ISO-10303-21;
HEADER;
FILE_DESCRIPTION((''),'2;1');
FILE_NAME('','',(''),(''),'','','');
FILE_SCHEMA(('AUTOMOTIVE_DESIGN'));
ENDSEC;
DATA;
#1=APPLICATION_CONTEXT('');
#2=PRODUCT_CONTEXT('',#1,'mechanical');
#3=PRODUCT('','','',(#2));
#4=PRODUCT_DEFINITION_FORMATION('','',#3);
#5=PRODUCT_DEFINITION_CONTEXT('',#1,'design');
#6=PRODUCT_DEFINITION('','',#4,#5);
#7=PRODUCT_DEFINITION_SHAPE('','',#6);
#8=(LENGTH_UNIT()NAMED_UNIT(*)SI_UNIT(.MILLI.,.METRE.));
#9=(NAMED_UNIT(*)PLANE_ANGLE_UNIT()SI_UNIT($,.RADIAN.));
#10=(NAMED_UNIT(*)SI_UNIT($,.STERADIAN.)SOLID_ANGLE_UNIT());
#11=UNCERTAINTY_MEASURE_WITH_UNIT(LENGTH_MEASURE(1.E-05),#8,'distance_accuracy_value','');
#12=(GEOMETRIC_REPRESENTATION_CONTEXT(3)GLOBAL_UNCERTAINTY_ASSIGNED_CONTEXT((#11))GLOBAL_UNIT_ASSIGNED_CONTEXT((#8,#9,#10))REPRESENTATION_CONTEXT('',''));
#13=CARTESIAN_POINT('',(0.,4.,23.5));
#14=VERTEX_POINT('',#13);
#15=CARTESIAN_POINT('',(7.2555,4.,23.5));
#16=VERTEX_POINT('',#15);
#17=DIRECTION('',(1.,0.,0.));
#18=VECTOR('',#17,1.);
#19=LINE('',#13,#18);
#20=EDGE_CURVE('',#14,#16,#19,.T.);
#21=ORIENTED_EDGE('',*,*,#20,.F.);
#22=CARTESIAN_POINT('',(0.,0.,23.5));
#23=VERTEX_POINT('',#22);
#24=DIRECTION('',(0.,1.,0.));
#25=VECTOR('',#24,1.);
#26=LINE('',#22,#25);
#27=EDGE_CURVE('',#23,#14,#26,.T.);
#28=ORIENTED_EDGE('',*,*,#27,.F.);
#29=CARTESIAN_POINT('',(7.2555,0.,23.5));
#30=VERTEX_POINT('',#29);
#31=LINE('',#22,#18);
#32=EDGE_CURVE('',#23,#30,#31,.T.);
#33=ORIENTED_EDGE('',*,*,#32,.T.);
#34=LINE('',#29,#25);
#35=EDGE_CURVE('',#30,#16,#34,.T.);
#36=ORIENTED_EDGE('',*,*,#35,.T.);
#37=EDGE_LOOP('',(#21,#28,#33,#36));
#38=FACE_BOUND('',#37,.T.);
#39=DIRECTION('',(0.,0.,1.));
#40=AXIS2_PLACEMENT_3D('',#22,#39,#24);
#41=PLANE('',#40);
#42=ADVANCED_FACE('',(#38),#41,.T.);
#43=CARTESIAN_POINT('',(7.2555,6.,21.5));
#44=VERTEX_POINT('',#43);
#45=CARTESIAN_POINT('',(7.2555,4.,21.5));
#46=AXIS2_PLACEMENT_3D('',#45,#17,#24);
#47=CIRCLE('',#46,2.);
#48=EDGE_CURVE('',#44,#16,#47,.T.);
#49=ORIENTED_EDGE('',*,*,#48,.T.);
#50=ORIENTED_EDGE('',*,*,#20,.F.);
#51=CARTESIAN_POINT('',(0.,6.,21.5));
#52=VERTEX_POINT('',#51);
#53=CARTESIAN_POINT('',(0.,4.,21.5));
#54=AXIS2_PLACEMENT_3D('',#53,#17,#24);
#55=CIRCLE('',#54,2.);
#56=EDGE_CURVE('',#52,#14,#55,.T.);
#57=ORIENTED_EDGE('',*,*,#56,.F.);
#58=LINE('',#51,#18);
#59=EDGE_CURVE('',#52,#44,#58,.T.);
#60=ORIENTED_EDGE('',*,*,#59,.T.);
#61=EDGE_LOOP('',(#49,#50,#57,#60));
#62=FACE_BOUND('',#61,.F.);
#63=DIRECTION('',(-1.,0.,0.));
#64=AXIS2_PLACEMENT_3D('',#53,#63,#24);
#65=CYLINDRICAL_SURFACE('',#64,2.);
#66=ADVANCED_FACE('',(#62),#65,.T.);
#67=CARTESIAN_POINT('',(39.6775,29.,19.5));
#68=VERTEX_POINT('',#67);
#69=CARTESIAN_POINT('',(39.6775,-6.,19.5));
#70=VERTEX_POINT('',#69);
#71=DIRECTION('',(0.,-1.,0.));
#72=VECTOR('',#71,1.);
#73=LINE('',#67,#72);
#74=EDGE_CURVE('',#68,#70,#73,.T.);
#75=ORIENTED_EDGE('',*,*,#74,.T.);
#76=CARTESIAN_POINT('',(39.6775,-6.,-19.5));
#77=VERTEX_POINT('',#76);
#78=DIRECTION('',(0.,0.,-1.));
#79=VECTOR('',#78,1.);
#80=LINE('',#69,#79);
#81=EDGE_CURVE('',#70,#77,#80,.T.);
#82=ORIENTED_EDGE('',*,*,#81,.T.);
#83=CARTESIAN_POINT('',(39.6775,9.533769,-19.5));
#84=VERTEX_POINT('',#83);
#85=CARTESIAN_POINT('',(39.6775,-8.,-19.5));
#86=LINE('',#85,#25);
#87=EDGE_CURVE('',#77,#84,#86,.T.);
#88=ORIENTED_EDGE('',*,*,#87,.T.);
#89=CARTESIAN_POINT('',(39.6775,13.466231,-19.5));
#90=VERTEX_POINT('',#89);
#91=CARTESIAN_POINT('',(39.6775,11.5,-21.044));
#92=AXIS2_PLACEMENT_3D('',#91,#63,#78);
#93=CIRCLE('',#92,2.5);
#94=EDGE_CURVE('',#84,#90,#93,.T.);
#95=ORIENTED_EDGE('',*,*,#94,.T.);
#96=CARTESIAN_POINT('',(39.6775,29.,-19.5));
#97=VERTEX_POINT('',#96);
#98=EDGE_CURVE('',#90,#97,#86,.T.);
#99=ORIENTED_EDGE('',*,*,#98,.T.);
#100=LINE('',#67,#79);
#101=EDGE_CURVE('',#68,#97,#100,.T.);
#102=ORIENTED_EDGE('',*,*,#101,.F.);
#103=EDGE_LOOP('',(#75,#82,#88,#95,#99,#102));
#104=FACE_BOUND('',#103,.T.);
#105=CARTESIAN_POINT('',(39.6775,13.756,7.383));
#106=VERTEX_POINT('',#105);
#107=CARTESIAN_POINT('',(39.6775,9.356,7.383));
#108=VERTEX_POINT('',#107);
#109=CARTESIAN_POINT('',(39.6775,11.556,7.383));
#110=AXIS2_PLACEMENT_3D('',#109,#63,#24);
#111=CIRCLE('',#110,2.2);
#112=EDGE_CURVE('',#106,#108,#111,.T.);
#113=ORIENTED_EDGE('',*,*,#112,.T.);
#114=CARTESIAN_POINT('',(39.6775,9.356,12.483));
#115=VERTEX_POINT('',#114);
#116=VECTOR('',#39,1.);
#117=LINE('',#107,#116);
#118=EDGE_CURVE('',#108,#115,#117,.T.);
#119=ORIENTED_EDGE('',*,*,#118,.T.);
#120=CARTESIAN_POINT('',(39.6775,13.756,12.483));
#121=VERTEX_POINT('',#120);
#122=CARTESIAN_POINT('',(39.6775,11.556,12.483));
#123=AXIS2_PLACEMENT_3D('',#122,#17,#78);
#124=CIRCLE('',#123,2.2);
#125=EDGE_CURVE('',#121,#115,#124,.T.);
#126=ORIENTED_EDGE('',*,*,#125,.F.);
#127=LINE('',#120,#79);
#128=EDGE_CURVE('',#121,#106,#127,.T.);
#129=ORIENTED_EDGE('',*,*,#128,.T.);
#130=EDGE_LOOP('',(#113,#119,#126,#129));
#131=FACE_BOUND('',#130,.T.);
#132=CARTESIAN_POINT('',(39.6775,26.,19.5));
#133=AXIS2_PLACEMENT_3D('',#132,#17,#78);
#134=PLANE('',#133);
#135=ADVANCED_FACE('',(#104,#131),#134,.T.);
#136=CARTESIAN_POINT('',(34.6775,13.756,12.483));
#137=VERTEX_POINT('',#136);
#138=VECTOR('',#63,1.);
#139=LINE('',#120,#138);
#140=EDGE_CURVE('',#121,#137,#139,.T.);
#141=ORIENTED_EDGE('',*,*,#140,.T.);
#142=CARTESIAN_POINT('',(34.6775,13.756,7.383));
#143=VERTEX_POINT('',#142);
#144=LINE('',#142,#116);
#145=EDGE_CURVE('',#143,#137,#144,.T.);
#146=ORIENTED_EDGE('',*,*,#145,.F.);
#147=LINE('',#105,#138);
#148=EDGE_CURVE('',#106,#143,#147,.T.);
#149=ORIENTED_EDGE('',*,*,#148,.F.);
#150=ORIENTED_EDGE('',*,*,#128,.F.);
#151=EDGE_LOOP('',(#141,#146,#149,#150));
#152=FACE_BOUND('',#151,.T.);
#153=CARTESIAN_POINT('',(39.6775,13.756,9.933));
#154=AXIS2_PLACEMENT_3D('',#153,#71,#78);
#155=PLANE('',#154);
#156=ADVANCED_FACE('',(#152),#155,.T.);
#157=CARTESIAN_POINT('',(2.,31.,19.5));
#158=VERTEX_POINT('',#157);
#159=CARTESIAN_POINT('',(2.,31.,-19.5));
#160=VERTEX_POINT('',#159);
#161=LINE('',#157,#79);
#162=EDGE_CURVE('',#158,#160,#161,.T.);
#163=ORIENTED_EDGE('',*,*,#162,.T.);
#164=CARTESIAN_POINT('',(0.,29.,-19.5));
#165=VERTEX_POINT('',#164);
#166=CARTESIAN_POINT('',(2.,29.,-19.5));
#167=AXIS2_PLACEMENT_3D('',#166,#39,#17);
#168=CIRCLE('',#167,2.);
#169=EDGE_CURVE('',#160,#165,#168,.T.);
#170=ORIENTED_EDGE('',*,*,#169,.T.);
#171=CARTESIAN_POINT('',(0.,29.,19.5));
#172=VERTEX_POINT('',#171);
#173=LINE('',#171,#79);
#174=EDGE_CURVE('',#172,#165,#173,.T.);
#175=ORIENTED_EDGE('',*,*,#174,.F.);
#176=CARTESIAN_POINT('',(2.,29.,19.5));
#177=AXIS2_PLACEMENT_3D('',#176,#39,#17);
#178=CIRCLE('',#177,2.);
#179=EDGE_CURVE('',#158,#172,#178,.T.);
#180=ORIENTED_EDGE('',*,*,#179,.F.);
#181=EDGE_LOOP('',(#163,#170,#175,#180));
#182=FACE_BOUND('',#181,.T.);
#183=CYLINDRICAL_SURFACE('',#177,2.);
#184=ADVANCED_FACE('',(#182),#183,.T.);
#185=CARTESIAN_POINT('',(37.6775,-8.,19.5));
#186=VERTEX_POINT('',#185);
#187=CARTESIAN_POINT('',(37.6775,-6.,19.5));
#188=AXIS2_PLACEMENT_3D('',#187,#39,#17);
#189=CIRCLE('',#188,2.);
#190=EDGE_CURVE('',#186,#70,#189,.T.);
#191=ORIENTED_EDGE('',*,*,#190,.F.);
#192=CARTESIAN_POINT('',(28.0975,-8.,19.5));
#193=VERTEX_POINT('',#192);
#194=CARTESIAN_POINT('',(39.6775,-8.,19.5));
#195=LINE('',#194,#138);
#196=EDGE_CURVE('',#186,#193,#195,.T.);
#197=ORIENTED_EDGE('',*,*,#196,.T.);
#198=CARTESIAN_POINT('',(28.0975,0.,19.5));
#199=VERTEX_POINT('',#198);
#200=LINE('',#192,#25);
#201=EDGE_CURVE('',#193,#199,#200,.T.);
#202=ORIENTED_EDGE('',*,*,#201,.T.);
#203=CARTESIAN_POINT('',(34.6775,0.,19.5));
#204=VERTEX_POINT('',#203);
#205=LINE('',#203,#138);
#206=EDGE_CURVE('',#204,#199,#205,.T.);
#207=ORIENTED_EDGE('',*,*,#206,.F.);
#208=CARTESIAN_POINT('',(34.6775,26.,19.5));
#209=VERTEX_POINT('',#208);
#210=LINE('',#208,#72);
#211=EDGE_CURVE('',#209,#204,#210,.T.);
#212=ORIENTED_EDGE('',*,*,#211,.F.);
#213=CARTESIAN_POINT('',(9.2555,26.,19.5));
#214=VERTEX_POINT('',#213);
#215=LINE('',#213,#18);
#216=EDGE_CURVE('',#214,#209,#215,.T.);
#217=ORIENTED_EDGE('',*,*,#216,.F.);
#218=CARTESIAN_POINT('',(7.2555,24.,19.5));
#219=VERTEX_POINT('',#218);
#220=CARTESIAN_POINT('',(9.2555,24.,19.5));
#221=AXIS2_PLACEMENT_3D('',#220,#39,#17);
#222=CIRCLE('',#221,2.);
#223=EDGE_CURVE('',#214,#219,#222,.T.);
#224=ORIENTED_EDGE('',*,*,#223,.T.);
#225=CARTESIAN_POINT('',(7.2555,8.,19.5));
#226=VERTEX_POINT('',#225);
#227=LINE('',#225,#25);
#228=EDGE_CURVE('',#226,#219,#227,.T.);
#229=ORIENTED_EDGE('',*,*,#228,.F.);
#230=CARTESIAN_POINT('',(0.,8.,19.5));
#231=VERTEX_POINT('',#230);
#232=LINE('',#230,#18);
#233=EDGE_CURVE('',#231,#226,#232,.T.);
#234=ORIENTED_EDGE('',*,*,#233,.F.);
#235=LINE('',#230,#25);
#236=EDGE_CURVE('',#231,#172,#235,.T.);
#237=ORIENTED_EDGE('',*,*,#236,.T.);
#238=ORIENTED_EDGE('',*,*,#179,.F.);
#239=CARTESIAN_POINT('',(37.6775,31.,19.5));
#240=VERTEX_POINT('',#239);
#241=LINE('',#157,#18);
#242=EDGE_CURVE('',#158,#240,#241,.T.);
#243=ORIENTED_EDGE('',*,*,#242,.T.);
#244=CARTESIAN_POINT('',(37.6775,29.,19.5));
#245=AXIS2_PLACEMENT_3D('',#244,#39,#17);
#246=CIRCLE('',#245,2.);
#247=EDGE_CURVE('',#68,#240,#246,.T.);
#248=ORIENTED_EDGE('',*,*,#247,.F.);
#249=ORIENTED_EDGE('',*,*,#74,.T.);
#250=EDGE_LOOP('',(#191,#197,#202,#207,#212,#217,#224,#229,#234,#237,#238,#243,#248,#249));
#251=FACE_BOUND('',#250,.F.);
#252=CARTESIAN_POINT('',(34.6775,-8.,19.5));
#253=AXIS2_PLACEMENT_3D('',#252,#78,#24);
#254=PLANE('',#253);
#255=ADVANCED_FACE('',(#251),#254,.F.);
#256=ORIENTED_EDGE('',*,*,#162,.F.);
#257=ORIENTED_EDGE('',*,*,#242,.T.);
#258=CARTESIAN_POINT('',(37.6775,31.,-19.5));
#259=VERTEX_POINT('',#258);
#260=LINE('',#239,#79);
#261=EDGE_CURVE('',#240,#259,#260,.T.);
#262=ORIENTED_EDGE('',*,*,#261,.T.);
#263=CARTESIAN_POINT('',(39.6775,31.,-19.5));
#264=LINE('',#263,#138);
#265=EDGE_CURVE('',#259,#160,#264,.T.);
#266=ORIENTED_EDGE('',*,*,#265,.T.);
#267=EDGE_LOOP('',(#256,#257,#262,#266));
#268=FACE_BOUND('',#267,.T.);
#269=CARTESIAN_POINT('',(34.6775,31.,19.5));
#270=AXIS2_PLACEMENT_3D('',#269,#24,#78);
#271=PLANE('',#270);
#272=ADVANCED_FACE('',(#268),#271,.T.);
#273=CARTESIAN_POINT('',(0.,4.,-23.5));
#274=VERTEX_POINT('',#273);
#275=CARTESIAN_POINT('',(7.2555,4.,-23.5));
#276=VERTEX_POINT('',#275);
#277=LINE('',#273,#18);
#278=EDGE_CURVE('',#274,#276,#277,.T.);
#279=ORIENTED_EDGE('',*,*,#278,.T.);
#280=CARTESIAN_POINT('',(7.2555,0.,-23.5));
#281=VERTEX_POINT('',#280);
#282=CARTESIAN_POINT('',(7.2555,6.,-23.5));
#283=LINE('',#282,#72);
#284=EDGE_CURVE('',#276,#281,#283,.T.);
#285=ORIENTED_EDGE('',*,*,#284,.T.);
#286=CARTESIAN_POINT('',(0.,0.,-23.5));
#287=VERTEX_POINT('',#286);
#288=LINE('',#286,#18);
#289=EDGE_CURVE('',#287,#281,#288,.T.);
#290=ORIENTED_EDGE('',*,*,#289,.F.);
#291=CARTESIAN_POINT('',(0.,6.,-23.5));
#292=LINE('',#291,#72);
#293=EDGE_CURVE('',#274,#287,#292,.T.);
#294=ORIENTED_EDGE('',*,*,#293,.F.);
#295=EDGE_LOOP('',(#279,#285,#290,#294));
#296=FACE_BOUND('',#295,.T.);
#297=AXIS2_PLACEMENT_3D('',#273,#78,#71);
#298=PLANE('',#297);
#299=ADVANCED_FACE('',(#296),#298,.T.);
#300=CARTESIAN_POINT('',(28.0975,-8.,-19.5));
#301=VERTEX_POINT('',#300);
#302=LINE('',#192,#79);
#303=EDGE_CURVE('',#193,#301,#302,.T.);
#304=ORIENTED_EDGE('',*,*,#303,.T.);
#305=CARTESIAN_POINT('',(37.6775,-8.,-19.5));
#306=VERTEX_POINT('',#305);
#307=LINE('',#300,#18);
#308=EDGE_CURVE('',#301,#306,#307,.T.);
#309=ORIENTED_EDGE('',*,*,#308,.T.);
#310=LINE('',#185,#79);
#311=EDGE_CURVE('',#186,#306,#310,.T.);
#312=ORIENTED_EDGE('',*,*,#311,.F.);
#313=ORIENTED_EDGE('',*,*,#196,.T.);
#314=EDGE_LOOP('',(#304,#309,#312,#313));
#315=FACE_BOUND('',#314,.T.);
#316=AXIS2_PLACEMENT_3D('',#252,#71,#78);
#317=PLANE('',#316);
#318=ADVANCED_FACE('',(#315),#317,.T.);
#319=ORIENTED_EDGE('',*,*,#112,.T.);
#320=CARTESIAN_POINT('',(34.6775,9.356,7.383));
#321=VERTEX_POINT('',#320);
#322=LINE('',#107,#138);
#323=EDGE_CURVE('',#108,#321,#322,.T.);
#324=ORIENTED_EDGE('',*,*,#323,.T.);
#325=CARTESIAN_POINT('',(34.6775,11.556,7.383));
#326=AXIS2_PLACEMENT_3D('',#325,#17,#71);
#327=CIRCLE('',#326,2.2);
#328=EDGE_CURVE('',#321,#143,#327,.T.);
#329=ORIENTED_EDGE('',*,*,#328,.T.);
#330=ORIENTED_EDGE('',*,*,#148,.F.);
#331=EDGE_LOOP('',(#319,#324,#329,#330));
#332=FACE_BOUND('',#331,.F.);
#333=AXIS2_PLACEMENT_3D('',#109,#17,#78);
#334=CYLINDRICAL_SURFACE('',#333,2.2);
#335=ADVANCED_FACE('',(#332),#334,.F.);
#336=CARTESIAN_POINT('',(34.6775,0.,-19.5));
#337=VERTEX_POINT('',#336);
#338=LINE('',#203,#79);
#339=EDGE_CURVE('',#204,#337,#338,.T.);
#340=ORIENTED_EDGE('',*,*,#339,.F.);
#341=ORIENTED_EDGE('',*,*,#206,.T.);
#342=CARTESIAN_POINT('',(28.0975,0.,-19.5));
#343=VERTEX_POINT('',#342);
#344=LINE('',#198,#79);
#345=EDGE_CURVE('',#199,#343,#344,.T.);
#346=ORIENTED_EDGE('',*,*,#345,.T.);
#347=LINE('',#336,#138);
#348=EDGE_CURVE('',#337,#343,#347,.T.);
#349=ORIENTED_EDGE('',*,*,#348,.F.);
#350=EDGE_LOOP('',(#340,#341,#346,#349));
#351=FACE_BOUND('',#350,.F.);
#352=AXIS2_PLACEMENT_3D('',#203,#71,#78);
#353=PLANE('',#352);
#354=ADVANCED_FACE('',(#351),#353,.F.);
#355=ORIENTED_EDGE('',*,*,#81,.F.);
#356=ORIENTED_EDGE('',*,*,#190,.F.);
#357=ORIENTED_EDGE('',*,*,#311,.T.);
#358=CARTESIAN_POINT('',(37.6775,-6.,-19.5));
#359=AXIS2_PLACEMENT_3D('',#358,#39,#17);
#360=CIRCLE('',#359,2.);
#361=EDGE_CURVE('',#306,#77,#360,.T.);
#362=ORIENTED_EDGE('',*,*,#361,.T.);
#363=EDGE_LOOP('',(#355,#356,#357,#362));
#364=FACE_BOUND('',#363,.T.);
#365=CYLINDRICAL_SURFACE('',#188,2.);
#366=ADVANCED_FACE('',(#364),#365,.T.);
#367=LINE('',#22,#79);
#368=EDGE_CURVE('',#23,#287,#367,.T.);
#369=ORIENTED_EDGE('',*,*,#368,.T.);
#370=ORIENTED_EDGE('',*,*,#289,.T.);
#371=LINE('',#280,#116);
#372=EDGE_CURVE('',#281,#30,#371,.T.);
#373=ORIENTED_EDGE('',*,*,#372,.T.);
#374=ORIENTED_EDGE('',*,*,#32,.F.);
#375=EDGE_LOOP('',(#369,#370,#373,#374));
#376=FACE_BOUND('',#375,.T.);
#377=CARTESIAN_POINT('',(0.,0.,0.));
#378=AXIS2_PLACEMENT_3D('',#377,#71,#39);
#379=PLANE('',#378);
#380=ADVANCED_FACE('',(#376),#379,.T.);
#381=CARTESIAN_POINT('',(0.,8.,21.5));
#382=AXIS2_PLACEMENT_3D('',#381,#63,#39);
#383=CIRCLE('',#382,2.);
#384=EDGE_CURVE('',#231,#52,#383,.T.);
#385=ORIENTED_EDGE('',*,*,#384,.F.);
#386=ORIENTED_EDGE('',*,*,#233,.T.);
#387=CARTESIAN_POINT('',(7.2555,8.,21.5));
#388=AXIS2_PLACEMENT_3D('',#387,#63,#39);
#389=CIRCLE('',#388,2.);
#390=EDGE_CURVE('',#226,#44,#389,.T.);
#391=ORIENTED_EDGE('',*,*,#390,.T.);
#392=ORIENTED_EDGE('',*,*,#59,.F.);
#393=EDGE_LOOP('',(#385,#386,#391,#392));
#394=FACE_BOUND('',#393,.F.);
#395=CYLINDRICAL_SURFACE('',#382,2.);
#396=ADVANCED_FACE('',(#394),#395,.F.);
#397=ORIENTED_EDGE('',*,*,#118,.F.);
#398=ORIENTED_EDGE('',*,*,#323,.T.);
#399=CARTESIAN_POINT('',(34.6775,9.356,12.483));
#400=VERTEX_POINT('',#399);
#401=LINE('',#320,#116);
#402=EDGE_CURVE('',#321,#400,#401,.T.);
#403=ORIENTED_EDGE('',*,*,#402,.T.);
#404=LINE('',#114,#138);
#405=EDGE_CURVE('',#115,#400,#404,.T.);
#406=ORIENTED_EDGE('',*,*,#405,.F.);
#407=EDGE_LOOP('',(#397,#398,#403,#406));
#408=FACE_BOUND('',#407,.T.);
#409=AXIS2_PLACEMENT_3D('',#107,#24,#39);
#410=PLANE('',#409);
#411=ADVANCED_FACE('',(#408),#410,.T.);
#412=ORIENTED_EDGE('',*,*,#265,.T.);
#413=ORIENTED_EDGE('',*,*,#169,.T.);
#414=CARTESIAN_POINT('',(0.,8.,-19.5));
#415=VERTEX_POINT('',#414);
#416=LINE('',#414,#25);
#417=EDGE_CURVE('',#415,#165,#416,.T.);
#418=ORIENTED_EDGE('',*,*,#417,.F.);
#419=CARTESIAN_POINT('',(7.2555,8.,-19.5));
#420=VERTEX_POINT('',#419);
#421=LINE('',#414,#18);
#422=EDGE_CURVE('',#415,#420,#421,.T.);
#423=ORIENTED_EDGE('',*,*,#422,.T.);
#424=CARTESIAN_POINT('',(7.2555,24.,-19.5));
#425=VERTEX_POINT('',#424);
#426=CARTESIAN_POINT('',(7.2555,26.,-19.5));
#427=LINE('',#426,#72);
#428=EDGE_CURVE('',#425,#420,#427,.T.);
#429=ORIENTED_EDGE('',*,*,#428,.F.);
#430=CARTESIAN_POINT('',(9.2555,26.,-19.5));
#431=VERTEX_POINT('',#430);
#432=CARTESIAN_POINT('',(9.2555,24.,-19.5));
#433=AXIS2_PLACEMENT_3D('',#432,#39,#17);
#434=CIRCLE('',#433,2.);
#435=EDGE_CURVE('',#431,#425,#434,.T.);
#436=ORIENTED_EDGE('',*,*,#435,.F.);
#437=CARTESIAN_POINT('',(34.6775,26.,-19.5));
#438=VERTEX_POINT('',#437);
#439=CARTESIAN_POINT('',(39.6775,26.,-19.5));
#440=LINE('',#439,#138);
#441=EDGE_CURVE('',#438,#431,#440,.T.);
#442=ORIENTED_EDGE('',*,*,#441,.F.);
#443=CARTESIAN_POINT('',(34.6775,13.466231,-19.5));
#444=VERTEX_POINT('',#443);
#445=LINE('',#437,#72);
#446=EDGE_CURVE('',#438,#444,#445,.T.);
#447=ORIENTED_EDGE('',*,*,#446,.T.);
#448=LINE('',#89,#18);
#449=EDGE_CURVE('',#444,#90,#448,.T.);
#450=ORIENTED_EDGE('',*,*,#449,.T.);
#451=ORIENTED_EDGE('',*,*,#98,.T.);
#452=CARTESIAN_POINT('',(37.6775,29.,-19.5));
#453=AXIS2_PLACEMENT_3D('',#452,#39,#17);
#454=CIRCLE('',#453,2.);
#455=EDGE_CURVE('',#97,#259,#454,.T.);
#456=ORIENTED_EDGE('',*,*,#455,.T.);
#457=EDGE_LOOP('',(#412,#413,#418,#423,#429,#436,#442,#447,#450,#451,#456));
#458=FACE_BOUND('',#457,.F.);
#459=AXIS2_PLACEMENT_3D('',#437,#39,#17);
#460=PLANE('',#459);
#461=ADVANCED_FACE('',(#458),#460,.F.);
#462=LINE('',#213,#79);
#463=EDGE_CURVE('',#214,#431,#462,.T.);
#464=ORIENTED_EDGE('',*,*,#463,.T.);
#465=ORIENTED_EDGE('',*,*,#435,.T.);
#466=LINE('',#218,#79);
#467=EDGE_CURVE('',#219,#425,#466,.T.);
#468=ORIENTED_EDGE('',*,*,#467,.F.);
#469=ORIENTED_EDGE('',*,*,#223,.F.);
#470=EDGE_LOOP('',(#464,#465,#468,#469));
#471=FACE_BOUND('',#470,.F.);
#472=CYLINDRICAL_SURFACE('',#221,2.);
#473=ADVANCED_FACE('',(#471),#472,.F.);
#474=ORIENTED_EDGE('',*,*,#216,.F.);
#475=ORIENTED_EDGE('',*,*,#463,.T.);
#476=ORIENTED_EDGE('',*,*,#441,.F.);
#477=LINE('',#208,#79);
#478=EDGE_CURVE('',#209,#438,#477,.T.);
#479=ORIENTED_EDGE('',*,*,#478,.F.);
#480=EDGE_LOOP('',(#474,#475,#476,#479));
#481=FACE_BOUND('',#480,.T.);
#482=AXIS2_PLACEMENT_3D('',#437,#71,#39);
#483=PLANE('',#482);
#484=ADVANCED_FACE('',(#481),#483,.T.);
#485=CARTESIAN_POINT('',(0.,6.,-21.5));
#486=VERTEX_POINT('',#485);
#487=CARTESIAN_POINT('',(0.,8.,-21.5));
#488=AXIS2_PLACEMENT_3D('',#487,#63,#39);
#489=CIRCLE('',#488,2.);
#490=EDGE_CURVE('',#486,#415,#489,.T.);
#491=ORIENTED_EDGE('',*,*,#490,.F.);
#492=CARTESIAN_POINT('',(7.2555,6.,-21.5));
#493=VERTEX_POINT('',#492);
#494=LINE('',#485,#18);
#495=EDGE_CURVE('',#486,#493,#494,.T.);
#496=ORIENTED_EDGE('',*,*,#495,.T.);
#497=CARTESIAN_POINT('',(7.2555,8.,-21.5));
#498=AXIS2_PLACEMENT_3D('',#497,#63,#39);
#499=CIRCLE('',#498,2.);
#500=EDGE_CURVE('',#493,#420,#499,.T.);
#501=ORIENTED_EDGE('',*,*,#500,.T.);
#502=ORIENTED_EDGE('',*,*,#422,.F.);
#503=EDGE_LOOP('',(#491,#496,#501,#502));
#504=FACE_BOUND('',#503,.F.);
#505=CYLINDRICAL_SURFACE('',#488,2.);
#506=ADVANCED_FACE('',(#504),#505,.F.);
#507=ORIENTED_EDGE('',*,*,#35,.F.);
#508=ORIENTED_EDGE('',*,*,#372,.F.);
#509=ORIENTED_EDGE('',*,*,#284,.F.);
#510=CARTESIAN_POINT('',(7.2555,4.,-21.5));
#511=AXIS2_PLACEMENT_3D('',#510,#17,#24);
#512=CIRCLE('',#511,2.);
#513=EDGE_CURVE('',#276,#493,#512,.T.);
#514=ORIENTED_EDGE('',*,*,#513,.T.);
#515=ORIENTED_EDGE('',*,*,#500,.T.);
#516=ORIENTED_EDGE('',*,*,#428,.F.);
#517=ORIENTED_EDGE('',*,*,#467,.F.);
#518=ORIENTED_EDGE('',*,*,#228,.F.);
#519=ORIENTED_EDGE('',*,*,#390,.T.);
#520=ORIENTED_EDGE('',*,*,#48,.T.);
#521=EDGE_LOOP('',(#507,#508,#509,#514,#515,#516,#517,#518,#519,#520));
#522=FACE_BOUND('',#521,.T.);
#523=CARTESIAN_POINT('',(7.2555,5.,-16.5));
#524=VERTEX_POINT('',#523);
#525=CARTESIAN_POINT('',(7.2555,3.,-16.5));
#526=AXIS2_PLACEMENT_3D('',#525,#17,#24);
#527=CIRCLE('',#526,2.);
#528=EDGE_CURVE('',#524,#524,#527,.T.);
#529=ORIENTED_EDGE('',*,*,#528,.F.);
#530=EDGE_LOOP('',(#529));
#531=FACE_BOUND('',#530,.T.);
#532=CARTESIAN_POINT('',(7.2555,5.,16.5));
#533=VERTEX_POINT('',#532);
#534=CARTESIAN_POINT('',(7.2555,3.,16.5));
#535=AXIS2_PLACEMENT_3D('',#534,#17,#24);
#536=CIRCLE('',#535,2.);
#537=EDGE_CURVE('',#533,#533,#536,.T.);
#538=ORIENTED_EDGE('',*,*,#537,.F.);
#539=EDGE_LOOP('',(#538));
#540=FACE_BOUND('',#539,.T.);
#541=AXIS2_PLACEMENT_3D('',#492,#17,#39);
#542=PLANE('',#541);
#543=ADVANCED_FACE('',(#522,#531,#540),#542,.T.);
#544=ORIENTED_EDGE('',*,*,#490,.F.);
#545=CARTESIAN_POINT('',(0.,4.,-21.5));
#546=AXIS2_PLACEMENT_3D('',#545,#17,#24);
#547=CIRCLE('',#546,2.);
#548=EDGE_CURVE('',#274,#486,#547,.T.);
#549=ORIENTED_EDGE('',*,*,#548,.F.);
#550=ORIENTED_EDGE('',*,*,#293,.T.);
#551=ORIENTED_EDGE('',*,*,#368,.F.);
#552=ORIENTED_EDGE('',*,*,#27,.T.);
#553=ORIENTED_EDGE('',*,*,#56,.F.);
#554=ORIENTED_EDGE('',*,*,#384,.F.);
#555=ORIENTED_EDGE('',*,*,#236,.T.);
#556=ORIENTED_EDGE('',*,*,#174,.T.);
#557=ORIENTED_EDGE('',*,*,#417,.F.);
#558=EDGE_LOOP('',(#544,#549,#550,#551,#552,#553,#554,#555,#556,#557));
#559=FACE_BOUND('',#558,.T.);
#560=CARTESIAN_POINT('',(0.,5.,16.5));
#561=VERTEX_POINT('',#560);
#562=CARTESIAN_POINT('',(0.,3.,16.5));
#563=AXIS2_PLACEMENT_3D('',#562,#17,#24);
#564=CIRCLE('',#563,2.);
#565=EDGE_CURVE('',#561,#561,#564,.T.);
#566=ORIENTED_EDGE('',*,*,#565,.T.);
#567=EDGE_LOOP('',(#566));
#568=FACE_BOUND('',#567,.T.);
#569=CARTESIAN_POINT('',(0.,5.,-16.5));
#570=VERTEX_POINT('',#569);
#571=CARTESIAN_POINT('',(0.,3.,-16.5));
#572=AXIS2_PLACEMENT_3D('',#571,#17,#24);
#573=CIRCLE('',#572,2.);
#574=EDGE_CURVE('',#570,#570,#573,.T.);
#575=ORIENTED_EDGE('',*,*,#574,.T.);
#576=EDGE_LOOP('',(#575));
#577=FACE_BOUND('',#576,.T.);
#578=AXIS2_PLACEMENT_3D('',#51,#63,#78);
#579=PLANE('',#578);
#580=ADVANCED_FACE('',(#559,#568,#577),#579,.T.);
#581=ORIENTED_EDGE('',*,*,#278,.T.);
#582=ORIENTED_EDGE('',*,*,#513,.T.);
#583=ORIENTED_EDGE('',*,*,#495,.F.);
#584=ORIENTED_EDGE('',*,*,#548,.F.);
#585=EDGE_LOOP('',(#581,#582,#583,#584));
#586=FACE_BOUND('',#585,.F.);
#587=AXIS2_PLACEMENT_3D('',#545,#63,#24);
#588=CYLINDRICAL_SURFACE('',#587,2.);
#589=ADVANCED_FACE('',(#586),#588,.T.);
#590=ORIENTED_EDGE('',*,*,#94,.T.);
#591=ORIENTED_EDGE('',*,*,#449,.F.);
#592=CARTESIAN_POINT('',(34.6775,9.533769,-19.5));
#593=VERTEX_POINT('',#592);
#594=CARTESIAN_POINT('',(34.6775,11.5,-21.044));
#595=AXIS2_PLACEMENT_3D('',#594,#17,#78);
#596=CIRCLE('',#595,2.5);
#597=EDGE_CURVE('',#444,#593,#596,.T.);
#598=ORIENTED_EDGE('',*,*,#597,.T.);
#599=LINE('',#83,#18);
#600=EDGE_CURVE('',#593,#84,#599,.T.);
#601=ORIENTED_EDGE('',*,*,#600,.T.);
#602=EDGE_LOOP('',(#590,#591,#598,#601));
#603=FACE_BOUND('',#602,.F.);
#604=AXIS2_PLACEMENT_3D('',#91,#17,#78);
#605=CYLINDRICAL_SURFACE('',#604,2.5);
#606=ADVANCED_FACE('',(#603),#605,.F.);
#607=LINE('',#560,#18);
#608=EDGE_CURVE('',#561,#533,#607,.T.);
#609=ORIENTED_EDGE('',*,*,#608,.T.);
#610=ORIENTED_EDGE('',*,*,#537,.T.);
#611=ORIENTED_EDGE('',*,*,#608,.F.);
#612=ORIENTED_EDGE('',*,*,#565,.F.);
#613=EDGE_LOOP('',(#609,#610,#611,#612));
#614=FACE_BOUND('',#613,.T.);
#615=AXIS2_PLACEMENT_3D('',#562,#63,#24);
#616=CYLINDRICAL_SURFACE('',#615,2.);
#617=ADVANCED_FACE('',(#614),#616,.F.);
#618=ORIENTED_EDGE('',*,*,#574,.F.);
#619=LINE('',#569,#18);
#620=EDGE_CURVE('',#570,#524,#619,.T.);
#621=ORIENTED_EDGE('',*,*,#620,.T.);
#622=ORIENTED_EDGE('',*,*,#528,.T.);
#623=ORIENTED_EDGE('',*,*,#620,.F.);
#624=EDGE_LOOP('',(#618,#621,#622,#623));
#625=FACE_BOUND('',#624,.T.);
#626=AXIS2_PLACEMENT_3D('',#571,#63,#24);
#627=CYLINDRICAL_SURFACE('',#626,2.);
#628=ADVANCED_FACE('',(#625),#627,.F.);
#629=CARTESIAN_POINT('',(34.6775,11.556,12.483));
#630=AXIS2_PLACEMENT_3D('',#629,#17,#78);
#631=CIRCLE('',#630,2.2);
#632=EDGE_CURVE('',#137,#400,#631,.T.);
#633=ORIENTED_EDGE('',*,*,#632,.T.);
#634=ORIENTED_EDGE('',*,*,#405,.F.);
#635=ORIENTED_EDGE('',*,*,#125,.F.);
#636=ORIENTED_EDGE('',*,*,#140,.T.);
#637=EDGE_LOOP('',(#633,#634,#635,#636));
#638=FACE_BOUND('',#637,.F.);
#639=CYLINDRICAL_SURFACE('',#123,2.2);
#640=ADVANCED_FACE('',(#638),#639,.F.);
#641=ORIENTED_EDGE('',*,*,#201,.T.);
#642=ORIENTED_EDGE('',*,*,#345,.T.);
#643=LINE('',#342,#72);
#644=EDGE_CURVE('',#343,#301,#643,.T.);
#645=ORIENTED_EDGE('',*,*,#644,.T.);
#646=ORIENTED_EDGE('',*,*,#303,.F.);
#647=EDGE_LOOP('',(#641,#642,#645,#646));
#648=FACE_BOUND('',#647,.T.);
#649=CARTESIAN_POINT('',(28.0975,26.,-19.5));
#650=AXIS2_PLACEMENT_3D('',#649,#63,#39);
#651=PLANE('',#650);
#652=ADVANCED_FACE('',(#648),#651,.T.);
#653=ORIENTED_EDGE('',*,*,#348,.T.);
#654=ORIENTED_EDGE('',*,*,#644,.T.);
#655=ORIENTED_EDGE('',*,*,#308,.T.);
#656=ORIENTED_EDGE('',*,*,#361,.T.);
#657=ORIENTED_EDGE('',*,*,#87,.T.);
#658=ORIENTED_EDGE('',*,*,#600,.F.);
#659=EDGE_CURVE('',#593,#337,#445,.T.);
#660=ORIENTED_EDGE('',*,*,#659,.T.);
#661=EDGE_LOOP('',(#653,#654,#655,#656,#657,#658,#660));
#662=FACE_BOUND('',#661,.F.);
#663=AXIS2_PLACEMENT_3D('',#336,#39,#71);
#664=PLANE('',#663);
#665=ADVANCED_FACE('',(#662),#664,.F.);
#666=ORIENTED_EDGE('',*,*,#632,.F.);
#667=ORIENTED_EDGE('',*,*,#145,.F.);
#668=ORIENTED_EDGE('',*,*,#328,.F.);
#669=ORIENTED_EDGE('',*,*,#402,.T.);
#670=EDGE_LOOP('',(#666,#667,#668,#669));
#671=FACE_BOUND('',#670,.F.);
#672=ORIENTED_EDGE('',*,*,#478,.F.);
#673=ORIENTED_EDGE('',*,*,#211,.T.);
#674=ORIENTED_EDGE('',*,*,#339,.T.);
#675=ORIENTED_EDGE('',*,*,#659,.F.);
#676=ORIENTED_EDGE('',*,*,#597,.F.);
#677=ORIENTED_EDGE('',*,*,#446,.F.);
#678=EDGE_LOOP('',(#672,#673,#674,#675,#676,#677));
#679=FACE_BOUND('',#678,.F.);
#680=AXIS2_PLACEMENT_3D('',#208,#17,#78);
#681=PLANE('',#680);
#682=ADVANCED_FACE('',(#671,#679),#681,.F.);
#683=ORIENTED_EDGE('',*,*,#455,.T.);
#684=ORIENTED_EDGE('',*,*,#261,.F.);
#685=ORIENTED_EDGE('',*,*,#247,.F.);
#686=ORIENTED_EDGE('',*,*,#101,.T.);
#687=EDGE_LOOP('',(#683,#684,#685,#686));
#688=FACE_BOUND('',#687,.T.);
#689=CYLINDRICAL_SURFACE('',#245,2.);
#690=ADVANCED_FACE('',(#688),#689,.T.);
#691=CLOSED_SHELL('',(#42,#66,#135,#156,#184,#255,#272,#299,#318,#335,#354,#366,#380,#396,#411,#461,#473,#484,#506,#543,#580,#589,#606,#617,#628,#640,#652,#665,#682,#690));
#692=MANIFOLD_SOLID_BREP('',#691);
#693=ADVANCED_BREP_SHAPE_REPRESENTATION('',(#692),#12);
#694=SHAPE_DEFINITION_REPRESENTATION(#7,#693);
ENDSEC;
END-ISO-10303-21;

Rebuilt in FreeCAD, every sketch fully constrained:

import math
import FreeCAD as App
import Part
import Sketcher

doc = App.newDocument("Part")
body = doc.addObject("PartDesign::Body", "Body")

# Sketch on YZ plane
sketch1 = body.newObject("Sketcher::SketchObject", "Sketch")
sketch1.AttachmentSupport = (doc.getObject("YZ_Plane"), [""])
sketch1.MapMode = "FlatFace"
sketch1.addGeometry([
    Part.LineSegment(App.Vector(0, 23.5, 0), App.Vector(0, -23.5, 0)),  # 0
    Part.LineSegment(App.Vector(0, -23.5, 0), App.Vector(4, -23.5, 0)),  # 1
    Part.ArcOfCircle(Part.Circle(App.Vector(4, -21.5, 0), App.Vector(0, 0, 1), 2), math.radians(-90), math.radians(0)),  # 2
    Part.LineSegment(App.Vector(6, -21.5, 0), App.Vector(6, -16.5, 0)),  # 3
    Part.LineSegment(App.Vector(6, -16.5, 0), App.Vector(6, 16.5, 0)),  # 4
    Part.LineSegment(App.Vector(6, 16.5, 0), App.Vector(6, 21.5, 0)),  # 5
    Part.ArcOfCircle(Part.Circle(App.Vector(4, 21.5, 0), App.Vector(0, 0, 1), 2), math.radians(0), math.radians(90)),  # 6
    Part.LineSegment(App.Vector(4, 23.5, 0), App.Vector(0, 23.5, 0)),  # 7
    Part.Circle(App.Vector(3, -16.5, 0), App.Vector(0, 0, 1), 2),  # 8
    Part.Circle(App.Vector(3, 16.5, 0), App.Vector(0, 0, 1), 2),  # 9
], False)
sketch1.addConstraint([
    Sketcher.Constraint("Coincident", 0, 2, 1, 1),
    Sketcher.Constraint("Tangent", 1, 2, 2, 1),
    Sketcher.Constraint("Tangent", 2, 2, 3, 1),
    Sketcher.Constraint("Coincident", 3, 2, 4, 1),
    Sketcher.Constraint("Coincident", 4, 2, 5, 1),
    Sketcher.Constraint("Tangent", 5, 2, 6, 1),
    Sketcher.Constraint("Tangent", 6, 2, 7, 1),
    Sketcher.Constraint("Coincident", 7, 2, 0, 1),
    Sketcher.Constraint("Vertical", 0),
    Sketcher.Constraint("Horizontal", 1),
    Sketcher.Constraint("Vertical", 3),
    Sketcher.Constraint("Vertical", 4),
    Sketcher.Constraint("Vertical", 5),
    Sketcher.Constraint("Horizontal", 7),
    Sketcher.Constraint("Equal", 2, 6),
    Sketcher.Constraint("Equal", 6, 8),
    Sketcher.Constraint("Equal", 8, 9),
    Sketcher.Constraint("Symmetric", 0, 2, 7, 2, -1, 1),
    Sketcher.Constraint("Symmetric", 8, 3, 9, 3, -1),
    Sketcher.Constraint("Horizontal", 8, 3, 3, 2),
    Sketcher.Constraint("Horizontal", 9, 3, 4, 2),
    Sketcher.Constraint("Diameter", 8, 4.0),
    Sketcher.Constraint("DistanceX", 1, 1, 1, 2, 4.0),
    Sketcher.Constraint("DistanceY", 0, 2, 0, 1, 47.0),
    Sketcher.Constraint("DistanceX", -1, 1, 8, 3, 3.0),
    Sketcher.Constraint("DistanceY", 0, 2, 8, 3, 7.0),
])
pad1 = body.newObject("PartDesign::Pad", "Pad")
pad1.Profile = sketch1
pad1.Length = 7.2555

# Sketch on XZ plane
sketch2 = body.newObject("Sketcher::SketchObject", "Sketch001")
sketch2.AttachmentSupport = (doc.getObject("XZ_Plane"), [""])
sketch2.MapMode = "FlatFace"
sketch2.AttachmentOffset = App.Placement(App.Vector(0, 0, -6), App.Rotation())
sketch2.addGeometry([
    Part.LineSegment(App.Vector(0, -21.5, 0), App.Vector(0, 21.5, 0)),
    Part.LineSegment(App.Vector(0, 21.5, 0), App.Vector(7.2555, 21.5, 0)),
    Part.LineSegment(App.Vector(7.2555, 21.5, 0), App.Vector(7.2555, -21.5, 0)),
    Part.LineSegment(App.Vector(7.2555, -21.5, 0), App.Vector(0, -21.5, 0)),
], False)
sketch2.addConstraint([
    Sketcher.Constraint("Coincident", 0, 2, 1, 1),
    Sketcher.Constraint("Coincident", 1, 2, 2, 1),
    Sketcher.Constraint("Coincident", 2, 2, 3, 1),
    Sketcher.Constraint("Coincident", 3, 2, 0, 1),
    Sketcher.Constraint("Vertical", 0),
    Sketcher.Constraint("Horizontal", 1),
    Sketcher.Constraint("Vertical", 2),
    Sketcher.Constraint("Horizontal", 3),
    Sketcher.Constraint("Symmetric", 0, 2, 3, 2, -1, 1),
    Sketcher.Constraint("DistanceY", 0, 1, 0, 2, 43.0),
    Sketcher.Constraint("DistanceX", 1, 1, 1, 2, 7.2555),
])
pad2 = body.newObject("PartDesign::Pad", "Pad001")
pad2.Profile = sketch2
pad2.Length = 25
pad2.Reversed = True

# Sketch on YZ plane
sketch3 = body.newObject("Sketcher::SketchObject", "Sketch002")
sketch3.AttachmentSupport = (doc.getObject("YZ_Plane"), [""])
sketch3.MapMode = "FlatFace"
sketch3.addGeometry([
    Part.ArcOfCircle(Part.Circle(App.Vector(8, 21.5, 0), App.Vector(0, 0, 1), 2), math.radians(180), math.radians(270)),  # 0
    Part.LineSegment(App.Vector(6, 21.5, 0), App.Vector(31, 21.5, 0)),  # 1
    Part.LineSegment(App.Vector(31, 21.5, 0), App.Vector(31, 19.5, 0)),  # 2
    Part.LineSegment(App.Vector(31, 19.5, 0), App.Vector(8, 19.5, 0)),  # 3
    Part.LineSegment(App.Vector(8, -19.5, 0), App.Vector(31, -19.5, 0)),  # 4
    Part.LineSegment(App.Vector(31, -19.5, 0), App.Vector(31, -21.5, 0)),  # 5
    Part.LineSegment(App.Vector(31, -21.5, 0), App.Vector(6, -21.5, 0)),  # 6
    Part.ArcOfCircle(Part.Circle(App.Vector(8, -21.5, 0), App.Vector(0, 0, 1), 2), math.radians(90), math.radians(180)),  # 7
], False)
sketch3.addConstraint([
    Sketcher.Constraint("Coincident", 0, 1, 1, 1),
    Sketcher.Constraint("Coincident", 1, 2, 2, 1),
    Sketcher.Constraint("Coincident", 2, 2, 3, 1),
    Sketcher.Constraint("Tangent", 3, 2, 0, 2),
    Sketcher.Constraint("Coincident", 4, 2, 5, 1),
    Sketcher.Constraint("Coincident", 5, 2, 6, 1),
    Sketcher.Constraint("Coincident", 6, 2, 7, 2),
    Sketcher.Constraint("Tangent", 7, 1, 4, 1),
    Sketcher.Constraint("Horizontal", 1),
    Sketcher.Constraint("Vertical", 2),
    Sketcher.Constraint("Horizontal", 3),
    Sketcher.Constraint("Horizontal", 4),
    Sketcher.Constraint("Vertical", 5),
    Sketcher.Constraint("Horizontal", 6),
    Sketcher.Constraint("Equal", 0, 7),
    Sketcher.Constraint("Symmetric", 0, 3, 7, 3, -1),
    Sketcher.Constraint("Symmetric", 1, 2, 5, 2, -1),
    Sketcher.Constraint("Horizontal", 7, 3, 5, 2),
    Sketcher.Constraint("Radius", 0, 2.0),
    Sketcher.Constraint("DistanceX", 3, 2, 3, 1, 23.0),
    Sketcher.Constraint("DistanceX", -1, 1, 0, 3, 8.0),
    Sketcher.Constraint("DistanceY", 7, 3, 0, 3, 43.0),
])
pocket1 = body.newObject("PartDesign::Pocket", "Pocket")
pocket1.Profile = sketch3
pocket1.Length = 7.2555
pocket1.Reversed = True

# Sketch on YZ plane
sketch4 = body.newObject("Sketcher::SketchObject", "Sketch003")
sketch4.AttachmentSupport = (doc.getObject("YZ_Plane"), [""])
sketch4.MapMode = "FlatFace"
sketch4.AttachmentOffset = App.Placement(App.Vector(0, 0, 7.2555), App.Rotation())
sketch4.addGeometry([
    Part.LineSegment(App.Vector(31, -19.5, 0), App.Vector(31, 19.5, 0)),
    Part.LineSegment(App.Vector(31, 19.5, 0), App.Vector(26, 19.5, 0)),
    Part.LineSegment(App.Vector(26, 19.5, 0), App.Vector(26, -19.5, 0)),
    Part.LineSegment(App.Vector(26, -19.5, 0), App.Vector(31, -19.5, 0)),
], False)
sketch4.addConstraint([
    Sketcher.Constraint("Coincident", 0, 2, 1, 1),
    Sketcher.Constraint("Coincident", 1, 2, 2, 1),
    Sketcher.Constraint("Coincident", 2, 2, 3, 1),
    Sketcher.Constraint("Coincident", 3, 2, 0, 1),
    Sketcher.Constraint("Vertical", 0),
    Sketcher.Constraint("Horizontal", 1),
    Sketcher.Constraint("Vertical", 2),
    Sketcher.Constraint("Horizontal", 3),
    Sketcher.Constraint("DistanceX", 1, 2, 1, 1, 5.0),
    Sketcher.Constraint("DistanceY", 0, 1, 0, 2, 39.0),
    Sketcher.Constraint("DistanceX", -1, 1, 0, 2, 31.0),
    Sketcher.Constraint("DistanceY", -1, 1, 0, 2, 19.5),
])
pad3 = body.newObject("PartDesign::Pad", "Pad002")
pad3.Profile = sketch4
pad3.Length = 27.422

# Sketch on XY plane
sketch5 = body.newObject("Sketcher::SketchObject", "Sketch004")
sketch5.AttachmentSupport = (doc.getObject("XY_Plane"), [""])
sketch5.MapMode = "FlatFace"
sketch5.AttachmentOffset = App.Placement(App.Vector(0, 0, 19.5), App.Rotation())
sketch5.addGeometry([
    Part.LineSegment(App.Vector(0, 31, 0), App.Vector(0, 29, 0)),  # 0
    Part.ArcOfCircle(Part.Circle(App.Vector(2, 29, 0), App.Vector(0, 0, 1), 2), math.radians(90), math.radians(180)),  # 1
    Part.LineSegment(App.Vector(2, 31, 0), App.Vector(0, 31, 0)),  # 2
    Part.LineSegment(App.Vector(9.2555, 26, 0), App.Vector(7.2555, 26, 0)),  # 3
    Part.LineSegment(App.Vector(7.2555, 26, 0), App.Vector(7.2555, 24, 0)),  # 4
    Part.ArcOfCircle(Part.Circle(App.Vector(9.2555, 24, 0), App.Vector(0, 0, 1), 2), math.radians(90), math.radians(180)),  # 5
], False)
sketch5.addConstraint([
    Sketcher.Constraint("Tangent", 0, 2, 1, 2),
    Sketcher.Constraint("Tangent", 1, 1, 2, 1),
    Sketcher.Constraint("Coincident", 2, 2, 0, 1),
    Sketcher.Constraint("Coincident", 3, 2, 4, 1),
    Sketcher.Constraint("Tangent", 4, 2, 5, 2),
    Sketcher.Constraint("Tangent", 5, 1, 3, 1),
    Sketcher.Constraint("Vertical", 0),
    Sketcher.Constraint("Horizontal", 2),
    Sketcher.Constraint("Horizontal", 3),
    Sketcher.Constraint("Vertical", 4),
    Sketcher.Constraint("Equal", 1, 5),
    Sketcher.Constraint("PointOnObject", 0, 2, -2),
    Sketcher.Constraint("Radius", 1, 2.0),
    Sketcher.Constraint("DistanceY", -1, 1, 1, 3, 29.0),
    Sketcher.Constraint("DistanceY", -1, 1, 5, 3, 24.0),
    Sketcher.Constraint("DistanceX", -1, 1, 5, 3, 9.2555),
])
pocket2 = body.newObject("PartDesign::Pocket", "Pocket001")
pocket2.Profile = sketch5
pocket2.Length = 39

# Sketch on XY plane
sketch6 = body.newObject("Sketcher::SketchObject", "Sketch005")
sketch6.AttachmentSupport = (doc.getObject("XY_Plane"), [""])
sketch6.MapMode = "FlatFace"
sketch6.AttachmentOffset = App.Placement(App.Vector(0, 0, 19.5), App.Rotation())
sketch6.addGeometry([
    Part.LineSegment(App.Vector(9.2555, 26, 0), App.Vector(7.2555, 26, 0)),
    Part.LineSegment(App.Vector(7.2555, 26, 0), App.Vector(7.2555, 24, 0)),
    Part.ArcOfCircle(Part.Circle(App.Vector(9.2555, 24, 0), App.Vector(0, 0, 1), 2), math.radians(90), math.radians(180)),
], False)
sketch6.addConstraint([
    Sketcher.Constraint("Coincident", 0, 2, 1, 1),
    Sketcher.Constraint("Tangent", 1, 2, 2, 2),
    Sketcher.Constraint("Tangent", 2, 1, 0, 1),
    Sketcher.Constraint("Horizontal", 0),
    Sketcher.Constraint("Vertical", 1),
    Sketcher.Constraint("Radius", 2, 2.0),
    Sketcher.Constraint("DistanceY", -1, 1, 2, 3, 24.0),
    Sketcher.Constraint("DistanceX", -1, 1, 2, 3, 9.2555),
])
pad4 = body.newObject("PartDesign::Pad", "Pad003")
pad4.Profile = sketch6
pad4.Length = 39
pad4.Reversed = True

# Sketch on YZ plane
sketch7 = body.newObject("Sketcher::SketchObject", "Sketch006")
sketch7.AttachmentSupport = (doc.getObject("YZ_Plane"), [""])
sketch7.MapMode = "FlatFace"
sketch7.AttachmentOffset = App.Placement(App.Vector(0, 0, 34.6775), App.Rotation())
sketch7.addGeometry([
    Part.LineSegment(App.Vector(31, -19.5, 0), App.Vector(31, 19.5, 0)),
    Part.LineSegment(App.Vector(31, 19.5, 0), App.Vector(26, 19.5, 0)),
    Part.LineSegment(App.Vector(26, 19.5, 0), App.Vector(26, -19.5, 0)),
    Part.LineSegment(App.Vector(26, -19.5, 0), App.Vector(31, -19.5, 0)),
], False)
sketch7.addConstraint([
    Sketcher.Constraint("Coincident", 0, 2, 1, 1),
    Sketcher.Constraint("Coincident", 1, 2, 2, 1),
    Sketcher.Constraint("Coincident", 2, 2, 3, 1),
    Sketcher.Constraint("Coincident", 3, 2, 0, 1),
    Sketcher.Constraint("Vertical", 0),
    Sketcher.Constraint("Horizontal", 1),
    Sketcher.Constraint("Vertical", 2),
    Sketcher.Constraint("Horizontal", 3),
    Sketcher.Constraint("DistanceX", 1, 2, 1, 1, 5.0),
    Sketcher.Constraint("DistanceY", 0, 1, 0, 2, 39.0),
    Sketcher.Constraint("DistanceX", -1, 1, 0, 2, 31.0),
    Sketcher.Constraint("DistanceY", -1, 1, 0, 2, 19.5),
])
pad5 = body.newObject("PartDesign::Pad", "Pad004")
pad5.Profile = sketch7
pad5.Length = 5

# Sketch on XY plane
sketch8 = body.newObject("Sketcher::SketchObject", "Sketch007")
sketch8.AttachmentSupport = (doc.getObject("XY_Plane"), [""])
sketch8.MapMode = "FlatFace"
sketch8.AttachmentOffset = App.Placement(App.Vector(0, 0, 19.5), App.Rotation())
sketch8.addGeometry([
    Part.LineSegment(App.Vector(39.6775, 29, 0), App.Vector(39.6775, 31, 0)),
    Part.LineSegment(App.Vector(39.6775, 31, 0), App.Vector(37.6775, 31, 0)),
    Part.ArcOfCircle(Part.Circle(App.Vector(37.6775, 29, 0), App.Vector(0, 0, 1), 2), math.radians(0), math.radians(90)),
], False)
sketch8.addConstraint([
    Sketcher.Constraint("Coincident", 0, 2, 1, 1),
    Sketcher.Constraint("Tangent", 1, 2, 2, 2),
    Sketcher.Constraint("Tangent", 2, 1, 0, 1),
    Sketcher.Constraint("Vertical", 0),
    Sketcher.Constraint("Horizontal", 1),
    Sketcher.Constraint("Radius", 2, 2.0),
    Sketcher.Constraint("DistanceY", -1, 1, 2, 3, 29.0),
    Sketcher.Constraint("DistanceX", -1, 1, 2, 3, 37.6775),
])
pocket3 = body.newObject("PartDesign::Pocket", "Pocket002")
pocket3.Profile = sketch8
pocket3.Length = 39

# Sketch on XZ plane
sketch9 = body.newObject("Sketcher::SketchObject", "Sketch008")
sketch9.AttachmentSupport = (doc.getObject("XZ_Plane"), [""])
sketch9.MapMode = "FlatFace"
sketch9.AttachmentOffset = App.Placement(App.Vector(0, 0, -26), App.Rotation())
sketch9.addGeometry([
    Part.LineSegment(App.Vector(39.6775, -19.5, 0), App.Vector(39.6775, 19.5, 0)),
    Part.LineSegment(App.Vector(39.6775, 19.5, 0), App.Vector(34.6775, 19.5, 0)),
    Part.LineSegment(App.Vector(34.6775, 19.5, 0), App.Vector(34.6775, -19.5, 0)),
    Part.LineSegment(App.Vector(34.6775, -19.5, 0), App.Vector(39.6775, -19.5, 0)),
], False)
sketch9.addConstraint([
    Sketcher.Constraint("Coincident", 0, 2, 1, 1),
    Sketcher.Constraint("Coincident", 1, 2, 2, 1),
    Sketcher.Constraint("Coincident", 2, 2, 3, 1),
    Sketcher.Constraint("Coincident", 3, 2, 0, 1),
    Sketcher.Constraint("Vertical", 0),
    Sketcher.Constraint("Horizontal", 1),
    Sketcher.Constraint("Vertical", 2),
    Sketcher.Constraint("Horizontal", 3),
    Sketcher.Constraint("DistanceX", 1, 2, 1, 1, 5.0),
    Sketcher.Constraint("DistanceY", 0, 1, 0, 2, 39.0),
    Sketcher.Constraint("DistanceY", -1, 1, 0, 2, 19.5),
    Sketcher.Constraint("DistanceX", -1, 1, 0, 2, 39.6775),
])
pad6 = body.newObject("PartDesign::Pad", "Pad005")
pad6.Profile = sketch9
pad6.Length = 34

# Sketch on YZ plane
sketch10 = body.newObject("Sketcher::SketchObject", "Sketch009")
sketch10.AttachmentSupport = (doc.getObject("YZ_Plane"), [""])
sketch10.MapMode = "FlatFace"
sketch10.AttachmentOffset = App.Placement(App.Vector(0, 0, 39.6775), App.Rotation())
sketch10.addGeometry([
    Part.Circle(App.Vector(11.5, -21.044, 0), App.Vector(0, 0, 1), 2.5),  # 0
    Part.LineSegment(App.Vector(13.756, 7.383, 0), App.Vector(13.756, 12.483, 0)),  # 1
    Part.ArcOfCircle(Part.Circle(App.Vector(11.556, 12.483, 0), App.Vector(0, 0, 1), 2.2), math.radians(0), math.radians(180)),  # 2
    Part.LineSegment(App.Vector(9.356, 12.483, 0), App.Vector(9.356, 7.383, 0)),  # 3
    Part.ArcOfCircle(Part.Circle(App.Vector(11.556, 7.383, 0), App.Vector(0, 0, 1), 2.2), math.radians(180), math.radians(360)),  # 4
], False)
sketch10.addConstraint([
    Sketcher.Constraint("Tangent", 1, 2, 2, 1),
    Sketcher.Constraint("Tangent", 2, 2, 3, 1),
    Sketcher.Constraint("Tangent", 3, 2, 4, 1),
    Sketcher.Constraint("Tangent", 4, 2, 1, 1),
    Sketcher.Constraint("Vertical", 1),
    Sketcher.Constraint("Vertical", 3),
    Sketcher.Constraint("Diameter", 0, 5.0),
    Sketcher.Constraint("Radius", 2, 2.2),
    Sketcher.Constraint("DistanceY", 1, 1, 1, 2, 5.1),
    Sketcher.Constraint("DistanceX", -1, 1, 0, 3, 11.5),
    Sketcher.Constraint("DistanceY", 0, 3, -1, 1, 21.044),
    Sketcher.Constraint("DistanceX", -1, 1, 2, 3, 11.556),
    Sketcher.Constraint("DistanceY", -1, 1, 2, 3, 12.483),
])
pocket4 = body.newObject("PartDesign::Pocket", "Pocket003")
pocket4.Profile = sketch10
pocket4.Length = 5

# Sketch on YZ plane
sketch11 = body.newObject("Sketcher::SketchObject", "Sketch010")
sketch11.AttachmentSupport = (doc.getObject("YZ_Plane"), [""])
sketch11.MapMode = "FlatFace"
sketch11.AttachmentOffset = App.Placement(App.Vector(0, 0, 34.6775), App.Rotation())
sketch11.addGeometry([
    Part.LineSegment(App.Vector(-8, -19.5, 0), App.Vector(-8, 19.5, 0)),
    Part.LineSegment(App.Vector(-8, 19.5, 0), App.Vector(0, 19.5, 0)),
    Part.LineSegment(App.Vector(0, 19.5, 0), App.Vector(0, -19.5, 0)),
    Part.LineSegment(App.Vector(0, -19.5, 0), App.Vector(-8, -19.5, 0)),
], False)
sketch11.addConstraint([
    Sketcher.Constraint("Coincident", 0, 2, 1, 1),
    Sketcher.Constraint("Coincident", 1, 2, 2, 1),
    Sketcher.Constraint("Coincident", 2, 2, 3, 1),
    Sketcher.Constraint("Coincident", 3, 2, 0, 1),
    Sketcher.Constraint("Vertical", 0),
    Sketcher.Constraint("Horizontal", 1),
    Sketcher.Constraint("Vertical", 2),
    Sketcher.Constraint("Horizontal", 3),
    Sketcher.Constraint("Symmetric", 1, 2, 2, 2, -1, 1),
    Sketcher.Constraint("DistanceX", 1, 1, 1, 2, 8.0),
    Sketcher.Constraint("DistanceY", 0, 1, 0, 2, 39.0),
])
pad7 = body.newObject("PartDesign::Pad", "Pad006")
pad7.Profile = sketch11
pad7.Length = 6.58
pad7.Reversed = True

# Sketch on XY plane
sketch12 = body.newObject("Sketcher::SketchObject", "Sketch011")
sketch12.AttachmentSupport = (doc.getObject("XY_Plane"), [""])
sketch12.MapMode = "FlatFace"
sketch12.AttachmentOffset = App.Placement(App.Vector(0, 0, 19.5), App.Rotation())
sketch12.addGeometry([
    Part.LineSegment(App.Vector(39.6775, -8, 0), App.Vector(39.6775, -6, 0)),
    Part.ArcOfCircle(Part.Circle(App.Vector(37.6775, -6, 0), App.Vector(0, 0, 1), 2), math.radians(-90), math.radians(0)),
    Part.LineSegment(App.Vector(37.6775, -8, 0), App.Vector(39.6775, -8, 0)),
], False)
sketch12.addConstraint([
    Sketcher.Constraint("Tangent", 0, 2, 1, 2),
    Sketcher.Constraint("Tangent", 1, 1, 2, 1),
    Sketcher.Constraint("Coincident", 2, 2, 0, 1),
    Sketcher.Constraint("Vertical", 0),
    Sketcher.Constraint("Horizontal", 2),
    Sketcher.Constraint("Radius", 1, 2.0),
    Sketcher.Constraint("DistanceY", 1, 3, -1, 1, 6.0),
    Sketcher.Constraint("DistanceX", -1, 1, 1, 3, 37.6775),
])
pocket5 = body.newObject("PartDesign::Pocket", "Pocket004")
pocket5.Profile = sketch12
pocket5.Length = 39

doc.recompute()
